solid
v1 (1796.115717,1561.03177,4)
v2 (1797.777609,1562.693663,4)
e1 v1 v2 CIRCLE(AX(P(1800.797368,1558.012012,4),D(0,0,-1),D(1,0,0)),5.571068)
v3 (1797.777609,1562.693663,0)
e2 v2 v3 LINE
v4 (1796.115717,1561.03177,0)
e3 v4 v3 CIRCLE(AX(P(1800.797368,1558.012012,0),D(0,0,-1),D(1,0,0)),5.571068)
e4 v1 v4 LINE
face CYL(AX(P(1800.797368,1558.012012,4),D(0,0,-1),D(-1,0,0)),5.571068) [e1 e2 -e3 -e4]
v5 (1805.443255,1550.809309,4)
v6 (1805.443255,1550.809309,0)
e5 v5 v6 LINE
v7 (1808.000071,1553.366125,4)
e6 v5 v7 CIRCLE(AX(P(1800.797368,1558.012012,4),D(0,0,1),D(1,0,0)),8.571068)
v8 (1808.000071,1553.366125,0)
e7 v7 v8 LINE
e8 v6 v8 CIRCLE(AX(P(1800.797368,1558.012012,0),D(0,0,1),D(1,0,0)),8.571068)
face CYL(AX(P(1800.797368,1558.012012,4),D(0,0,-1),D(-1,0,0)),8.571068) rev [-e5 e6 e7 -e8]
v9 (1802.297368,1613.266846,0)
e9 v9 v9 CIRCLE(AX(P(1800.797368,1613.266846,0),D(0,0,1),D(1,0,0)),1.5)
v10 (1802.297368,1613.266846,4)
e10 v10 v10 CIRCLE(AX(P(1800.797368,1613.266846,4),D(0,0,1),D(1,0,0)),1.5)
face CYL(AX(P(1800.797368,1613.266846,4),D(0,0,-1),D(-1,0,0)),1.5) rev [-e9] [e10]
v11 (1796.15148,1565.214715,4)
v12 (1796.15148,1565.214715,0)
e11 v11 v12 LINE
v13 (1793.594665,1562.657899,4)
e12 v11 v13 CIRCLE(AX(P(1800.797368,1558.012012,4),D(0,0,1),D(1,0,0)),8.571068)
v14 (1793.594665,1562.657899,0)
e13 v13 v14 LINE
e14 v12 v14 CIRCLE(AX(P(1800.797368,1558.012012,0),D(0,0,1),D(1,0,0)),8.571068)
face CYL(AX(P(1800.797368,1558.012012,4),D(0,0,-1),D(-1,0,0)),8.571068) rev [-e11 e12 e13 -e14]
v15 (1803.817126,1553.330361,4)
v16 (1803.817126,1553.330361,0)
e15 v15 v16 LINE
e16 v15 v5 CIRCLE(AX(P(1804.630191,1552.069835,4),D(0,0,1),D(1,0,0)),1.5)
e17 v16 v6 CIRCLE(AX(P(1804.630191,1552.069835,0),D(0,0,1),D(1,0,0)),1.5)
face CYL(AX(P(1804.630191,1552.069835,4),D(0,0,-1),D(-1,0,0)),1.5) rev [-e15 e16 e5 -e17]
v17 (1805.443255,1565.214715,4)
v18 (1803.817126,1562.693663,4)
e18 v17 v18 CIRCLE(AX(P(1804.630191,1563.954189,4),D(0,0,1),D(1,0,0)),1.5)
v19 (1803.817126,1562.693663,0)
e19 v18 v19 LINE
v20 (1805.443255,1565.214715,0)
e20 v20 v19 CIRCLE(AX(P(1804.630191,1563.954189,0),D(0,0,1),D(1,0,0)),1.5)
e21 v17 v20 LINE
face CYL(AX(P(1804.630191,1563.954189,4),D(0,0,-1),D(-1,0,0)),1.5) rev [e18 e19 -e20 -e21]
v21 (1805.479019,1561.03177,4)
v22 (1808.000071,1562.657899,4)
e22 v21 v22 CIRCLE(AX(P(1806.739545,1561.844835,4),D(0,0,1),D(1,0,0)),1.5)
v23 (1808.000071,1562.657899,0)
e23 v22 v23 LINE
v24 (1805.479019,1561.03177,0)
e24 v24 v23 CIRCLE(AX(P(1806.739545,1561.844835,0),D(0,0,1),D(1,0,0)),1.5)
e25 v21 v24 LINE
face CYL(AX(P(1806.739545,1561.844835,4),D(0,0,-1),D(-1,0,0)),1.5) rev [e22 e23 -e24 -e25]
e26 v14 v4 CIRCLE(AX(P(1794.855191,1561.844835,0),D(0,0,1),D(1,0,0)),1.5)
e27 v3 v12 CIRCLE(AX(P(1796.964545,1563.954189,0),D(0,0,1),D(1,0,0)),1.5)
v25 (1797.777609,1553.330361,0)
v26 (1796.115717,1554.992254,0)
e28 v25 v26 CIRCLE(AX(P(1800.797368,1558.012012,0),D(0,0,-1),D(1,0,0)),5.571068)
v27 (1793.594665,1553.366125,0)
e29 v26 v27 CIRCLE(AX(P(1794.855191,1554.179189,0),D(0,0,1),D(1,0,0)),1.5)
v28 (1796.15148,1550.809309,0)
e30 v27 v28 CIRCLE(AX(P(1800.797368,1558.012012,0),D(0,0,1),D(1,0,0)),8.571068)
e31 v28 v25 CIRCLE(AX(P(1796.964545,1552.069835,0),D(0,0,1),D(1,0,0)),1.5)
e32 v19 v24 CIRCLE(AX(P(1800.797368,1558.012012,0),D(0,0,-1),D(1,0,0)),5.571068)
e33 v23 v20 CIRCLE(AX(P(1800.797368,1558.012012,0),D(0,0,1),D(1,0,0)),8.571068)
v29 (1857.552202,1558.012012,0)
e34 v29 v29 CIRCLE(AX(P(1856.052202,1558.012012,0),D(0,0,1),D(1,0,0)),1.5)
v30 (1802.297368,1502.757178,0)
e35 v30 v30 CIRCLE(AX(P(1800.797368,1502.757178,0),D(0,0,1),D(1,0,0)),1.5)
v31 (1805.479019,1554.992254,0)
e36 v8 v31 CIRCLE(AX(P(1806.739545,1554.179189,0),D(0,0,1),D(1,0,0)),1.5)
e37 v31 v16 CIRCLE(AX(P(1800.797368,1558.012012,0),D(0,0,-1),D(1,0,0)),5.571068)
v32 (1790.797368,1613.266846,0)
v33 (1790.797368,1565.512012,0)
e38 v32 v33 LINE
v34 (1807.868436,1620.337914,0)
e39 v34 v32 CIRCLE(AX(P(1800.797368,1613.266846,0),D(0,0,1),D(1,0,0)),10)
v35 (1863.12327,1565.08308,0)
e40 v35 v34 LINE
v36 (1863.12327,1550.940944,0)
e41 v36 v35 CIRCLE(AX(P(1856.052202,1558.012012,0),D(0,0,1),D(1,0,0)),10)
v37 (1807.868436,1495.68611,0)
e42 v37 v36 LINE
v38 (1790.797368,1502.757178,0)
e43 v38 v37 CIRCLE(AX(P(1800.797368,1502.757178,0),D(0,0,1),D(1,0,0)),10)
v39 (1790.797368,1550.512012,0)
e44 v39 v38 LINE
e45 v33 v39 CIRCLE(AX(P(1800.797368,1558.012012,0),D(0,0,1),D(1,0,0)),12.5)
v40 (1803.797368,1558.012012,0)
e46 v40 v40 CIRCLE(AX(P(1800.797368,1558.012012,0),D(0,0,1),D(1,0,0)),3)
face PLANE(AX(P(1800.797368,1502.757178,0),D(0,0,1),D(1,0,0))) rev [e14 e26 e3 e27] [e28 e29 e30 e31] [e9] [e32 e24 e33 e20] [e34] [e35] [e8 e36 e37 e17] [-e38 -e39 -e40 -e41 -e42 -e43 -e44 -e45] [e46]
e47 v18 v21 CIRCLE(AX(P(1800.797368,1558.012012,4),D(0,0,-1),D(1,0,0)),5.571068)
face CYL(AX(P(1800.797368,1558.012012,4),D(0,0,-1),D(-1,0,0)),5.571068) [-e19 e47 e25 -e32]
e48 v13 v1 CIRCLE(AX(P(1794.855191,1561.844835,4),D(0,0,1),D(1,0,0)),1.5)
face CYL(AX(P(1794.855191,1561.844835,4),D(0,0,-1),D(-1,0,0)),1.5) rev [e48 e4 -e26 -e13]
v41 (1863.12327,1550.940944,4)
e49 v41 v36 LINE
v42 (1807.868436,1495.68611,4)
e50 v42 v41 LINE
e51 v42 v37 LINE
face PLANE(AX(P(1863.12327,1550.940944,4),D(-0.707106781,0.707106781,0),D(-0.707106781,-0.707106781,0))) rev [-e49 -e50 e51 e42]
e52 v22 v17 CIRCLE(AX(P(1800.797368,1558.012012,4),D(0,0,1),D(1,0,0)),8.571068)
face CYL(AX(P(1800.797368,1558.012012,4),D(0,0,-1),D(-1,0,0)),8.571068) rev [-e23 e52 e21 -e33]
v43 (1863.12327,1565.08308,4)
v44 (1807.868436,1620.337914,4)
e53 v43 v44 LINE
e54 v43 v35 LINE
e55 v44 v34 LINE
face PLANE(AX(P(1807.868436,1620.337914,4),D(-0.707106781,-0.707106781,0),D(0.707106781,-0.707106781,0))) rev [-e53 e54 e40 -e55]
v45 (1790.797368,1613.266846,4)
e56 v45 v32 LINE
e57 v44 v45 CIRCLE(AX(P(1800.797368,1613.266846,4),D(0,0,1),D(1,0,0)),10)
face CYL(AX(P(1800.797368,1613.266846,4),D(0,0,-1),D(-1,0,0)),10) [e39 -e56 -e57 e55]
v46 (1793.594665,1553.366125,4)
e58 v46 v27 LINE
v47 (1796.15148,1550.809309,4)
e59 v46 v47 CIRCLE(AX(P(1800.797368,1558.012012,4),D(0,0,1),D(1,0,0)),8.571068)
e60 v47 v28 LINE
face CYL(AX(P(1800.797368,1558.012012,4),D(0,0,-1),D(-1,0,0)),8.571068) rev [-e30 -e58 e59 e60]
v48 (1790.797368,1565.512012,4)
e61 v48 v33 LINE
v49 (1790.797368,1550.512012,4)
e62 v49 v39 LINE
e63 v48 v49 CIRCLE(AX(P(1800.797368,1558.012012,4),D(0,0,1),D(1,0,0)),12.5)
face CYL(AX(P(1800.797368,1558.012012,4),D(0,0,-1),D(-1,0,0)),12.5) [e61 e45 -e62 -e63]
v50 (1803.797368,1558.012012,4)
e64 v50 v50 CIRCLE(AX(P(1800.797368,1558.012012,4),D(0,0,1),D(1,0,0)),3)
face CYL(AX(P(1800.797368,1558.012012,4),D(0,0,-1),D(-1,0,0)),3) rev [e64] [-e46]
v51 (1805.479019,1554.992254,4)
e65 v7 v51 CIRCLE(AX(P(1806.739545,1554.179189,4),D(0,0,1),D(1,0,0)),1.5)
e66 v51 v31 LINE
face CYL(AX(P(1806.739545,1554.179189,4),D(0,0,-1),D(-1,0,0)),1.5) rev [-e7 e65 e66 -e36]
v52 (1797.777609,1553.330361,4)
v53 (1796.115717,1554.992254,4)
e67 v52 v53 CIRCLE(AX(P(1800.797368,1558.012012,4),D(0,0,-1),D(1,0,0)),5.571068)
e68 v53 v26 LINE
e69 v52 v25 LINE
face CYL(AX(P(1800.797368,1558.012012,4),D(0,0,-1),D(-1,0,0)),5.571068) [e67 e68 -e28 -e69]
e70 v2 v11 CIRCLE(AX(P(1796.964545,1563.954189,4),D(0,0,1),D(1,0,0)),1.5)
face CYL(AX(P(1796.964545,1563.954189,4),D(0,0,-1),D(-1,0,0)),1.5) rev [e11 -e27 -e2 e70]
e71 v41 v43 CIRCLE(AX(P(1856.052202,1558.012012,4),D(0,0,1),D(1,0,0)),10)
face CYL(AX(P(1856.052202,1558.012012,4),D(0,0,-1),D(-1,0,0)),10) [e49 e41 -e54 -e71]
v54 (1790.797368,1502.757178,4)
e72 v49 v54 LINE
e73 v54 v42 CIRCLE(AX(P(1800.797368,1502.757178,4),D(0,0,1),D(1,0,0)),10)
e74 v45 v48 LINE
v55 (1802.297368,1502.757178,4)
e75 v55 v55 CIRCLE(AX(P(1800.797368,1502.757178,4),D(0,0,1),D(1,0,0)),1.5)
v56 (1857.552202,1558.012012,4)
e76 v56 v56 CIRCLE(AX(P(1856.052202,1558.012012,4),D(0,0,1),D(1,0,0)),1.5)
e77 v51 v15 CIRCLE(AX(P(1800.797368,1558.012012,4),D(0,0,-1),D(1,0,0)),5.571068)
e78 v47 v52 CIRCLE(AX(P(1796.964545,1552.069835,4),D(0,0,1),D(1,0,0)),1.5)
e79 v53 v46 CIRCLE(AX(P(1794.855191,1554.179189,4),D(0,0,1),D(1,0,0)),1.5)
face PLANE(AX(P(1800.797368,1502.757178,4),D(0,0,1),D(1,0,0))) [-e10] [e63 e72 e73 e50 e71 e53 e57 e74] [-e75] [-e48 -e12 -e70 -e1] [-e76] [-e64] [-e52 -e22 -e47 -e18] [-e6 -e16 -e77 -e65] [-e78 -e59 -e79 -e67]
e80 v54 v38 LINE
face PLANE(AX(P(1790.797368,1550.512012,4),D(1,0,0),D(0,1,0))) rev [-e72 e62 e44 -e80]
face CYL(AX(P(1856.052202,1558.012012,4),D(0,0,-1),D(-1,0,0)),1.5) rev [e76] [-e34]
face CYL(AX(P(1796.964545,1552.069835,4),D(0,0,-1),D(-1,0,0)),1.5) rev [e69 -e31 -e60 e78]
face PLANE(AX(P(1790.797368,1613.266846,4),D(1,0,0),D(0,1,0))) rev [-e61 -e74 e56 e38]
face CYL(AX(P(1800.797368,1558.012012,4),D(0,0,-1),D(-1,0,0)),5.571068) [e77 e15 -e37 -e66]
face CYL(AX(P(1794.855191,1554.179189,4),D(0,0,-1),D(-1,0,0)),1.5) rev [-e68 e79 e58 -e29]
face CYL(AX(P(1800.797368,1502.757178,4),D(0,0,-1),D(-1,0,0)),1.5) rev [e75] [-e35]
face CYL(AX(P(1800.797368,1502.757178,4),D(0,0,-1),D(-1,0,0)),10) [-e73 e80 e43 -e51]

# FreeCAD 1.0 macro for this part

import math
import FreeCAD as App
import Part
import Sketcher
from FreeCAD import Vector

doc = App.newDocument("Part")
body = doc.addObject("PartDesign::Body", "Body")

sketch1 = body.newObject("Sketcher::SketchObject", "Sketch")
sketch1.AttachmentSupport = (doc.getObject("XY_Plane"), [""])
sketch1.MapMode = "FlatFace"
sketch1.addGeometry([
    Part.LineSegment(Vector(1790.8, 1613.3, 0), Vector(1790.8, 1565.5, 0)),
    Part.ArcOfCircle(Part.Circle(Vector(1800.8, 1558, 0), Vector(0, 0, 1), 12.5), math.radians(143), math.radians(217)),
    Part.LineSegment(Vector(1790.8, 1550.5, 0), Vector(1790.8, 1502.8, 0)),
    Part.ArcOfCircle(Part.Circle(Vector(1800.8, 1502.8, 0), Vector(0, 0, 1), 10), math.radians(-180), math.radians(-45)),
    Part.LineSegment(Vector(1807.9, 1495.7, 0), Vector(1863.1, 1550.9, 0)),
    Part.ArcOfCircle(Part.Circle(Vector(1856.1, 1558, 0), Vector(0, 0, 1), 10), math.radians(-45), math.radians(45)),
    Part.LineSegment(Vector(1863.1, 1565.1, 0), Vector(1807.9, 1620.3, 0)),
    Part.ArcOfCircle(Part.Circle(Vector(1800.8, 1613.3, 0), Vector(0, 0, 1), 10), math.radians(45), math.radians(180)),
    Part.Circle(Vector(1800.8, 1502.8, 0), Vector(0, 0, 1), 1.5),
    Part.ArcOfCircle(Part.Circle(Vector(1800.8, 1558, 0), Vector(0, 0, 1), 8.6), math.radians(-147), math.radians(-123)),
    Part.ArcOfCircle(Part.Circle(Vector(1794.9, 1554.2, 0), Vector(0, 0, 1), 1.5), math.radians(33), math.radians(213)),
    Part.ArcOfCircle(Part.Circle(Vector(1800.8, 1558, 0), Vector(0, 0, 1), 5.6), math.radians(-147), math.radians(-123)),
    Part.ArcOfCircle(Part.Circle(Vector(1797, 1552.1, 0), Vector(0, 0, 1), 1.5), math.radians(-123), math.radians(57)),
    Part.Circle(Vector(1800.8, 1558, 0), Vector(0, 0, 1), 3),
    Part.ArcOfCircle(Part.Circle(Vector(1800.8, 1558, 0), Vector(0, 0, 1), 8.6), math.radians(-57), math.radians(-33)),
    Part.ArcOfCircle(Part.Circle(Vector(1804.6, 1552.1, 0), Vector(0, 0, 1), 1.5), math.radians(123), math.radians(303)),
    Part.ArcOfCircle(Part.Circle(Vector(1800.8, 1558, 0), Vector(0, 0, 1), 5.6), math.radians(-57), math.radians(-33)),
    Part.ArcOfCircle(Part.Circle(Vector(1806.7, 1554.2, 0), Vector(0, 0, 1), 1.5), math.radians(-33), math.radians(147)),
    Part.Circle(Vector(1856.1, 1558, 0), Vector(0, 0, 1), 1.5),
    Part.ArcOfCircle(Part.Circle(Vector(1800.8, 1558, 0), Vector(0, 0, 1), 8.6), math.radians(123), math.radians(147)),
    Part.ArcOfCircle(Part.Circle(Vector(1797, 1564, 0), Vector(0, 0, 1), 1.5), math.radians(-57), math.radians(123)),
    Part.ArcOfCircle(Part.Circle(Vector(1800.8, 1558, 0), Vector(0, 0, 1), 5.6), math.radians(123), math.radians(147)),
    Part.ArcOfCircle(Part.Circle(Vector(1794.9, 1561.8, 0), Vector(0, 0, 1), 1.5), math.radians(147), math.radians(327)),
    Part.ArcOfCircle(Part.Circle(Vector(1800.8, 1558, 0), Vector(0, 0, 1), 8.6), math.radians(33), math.radians(57)),
    Part.ArcOfCircle(Part.Circle(Vector(1806.7, 1561.8, 0), Vector(0, 0, 1), 1.5), math.radians(-147), math.radians(33)),
    Part.ArcOfCircle(Part.Circle(Vector(1800.8, 1558, 0), Vector(0, 0, 1), 5.6), math.radians(33), math.radians(57)),
    Part.ArcOfCircle(Part.Circle(Vector(1804.6, 1564, 0), Vector(0, 0, 1), 1.5), math.radians(57), math.radians(237)),
    Part.Circle(Vector(1800.8, 1613.3, 0), Vector(0, 0, 1), 1.5),
], False)
sketch1.addConstraint([
    Sketcher.Constraint("Coincident", 0, 2, 1, 1),
    Sketcher.Constraint("Coincident", 1, 2, 2, 1),
    Sketcher.Constraint("Tangent", 2, 2, 3, 1),
    Sketcher.Constraint("Tangent", 3, 2, 4, 1),
    Sketcher.Constraint("Tangent", 4, 2, 5, 1),
    Sketcher.Constraint("Tangent", 5, 2, 6, 1),
    Sketcher.Constraint("Tangent", 6, 2, 7, 1),
    Sketcher.Constraint("Tangent", 7, 2, 0, 1),
    Sketcher.Constraint("Tangent", 9, 1, 10, 2),
    Sketcher.Constraint("Tangent", 10, 1, 11, 1),
    Sketcher.Constraint("Tangent", 11, 2, 12, 2),
    Sketcher.Constraint("Tangent", 12, 1, 9, 2),
    Sketcher.Constraint("Tangent", 14, 1, 15, 2),
    Sketcher.Constraint("Tangent", 15, 1, 16, 1),
    Sketcher.Constraint("Tangent", 16, 2, 17, 2),
    Sketcher.Constraint("Tangent", 17, 1, 14, 2),
    Sketcher.Constraint("Tangent", 19, 1, 20, 2),
    Sketcher.Constraint("Tangent", 20, 1, 21, 1),
    Sketcher.Constraint("Tangent", 21, 2, 22, 2),
    Sketcher.Constraint("Tangent", 22, 1, 19, 2),
    Sketcher.Constraint("Tangent", 23, 1, 24, 2),
    Sketcher.Constraint("Tangent", 24, 1, 25, 1),
    Sketcher.Constraint("Tangent", 25, 2, 26, 2),
    Sketcher.Constraint("Tangent", 26, 1, 23, 2),
    Sketcher.Constraint("Vertical", 0),
    Sketcher.Constraint("Vertical", 2),
    Sketcher.Constraint("Coincident", 8, 3, 3, 3),
    Sketcher.Constraint("Coincident", 9, 3, 1, 3),
    Sketcher.Constraint("Coincident", 11, 3, 1, 3),
    Sketcher.Constraint("Coincident", 13, 3, 1, 3),
    Sketcher.Constraint("Coincident", 14, 3, 1, 3),
    Sketcher.Constraint("Coincident", 16, 3, 1, 3),
    Sketcher.Constraint("Coincident", 18, 3, 5, 3),
    Sketcher.Constraint("Coincident", 19, 3, 1, 3),
    Sketcher.Constraint("Coincident", 21, 3, 1, 3),
    Sketcher.Constraint("Coincident", 23, 3, 1, 3),
    Sketcher.Constraint("Coincident", 25, 3, 1, 3),
    Sketcher.Constraint("Coincident", 27, 3, 7, 3),
    Sketcher.Constraint("Equal", 3, 5),
    Sketcher.Constraint("Equal", 5, 7),
    Sketcher.Constraint("Equal", 8, 10),
    Sketcher.Constraint("Equal", 9, 14),
    Sketcher.Constraint("Equal", 12, 15),
    Sketcher.Constraint("Equal", 17, 18),
    Sketcher.Constraint("Equal", 14, 19),
    Sketcher.Constraint("Equal", 18, 20),
    Sketcher.Constraint("Equal", 19, 23),
    Sketcher.Constraint("Equal", 22, 24),
    Sketcher.Constraint("Equal", 26, 27),
    Sketcher.Constraint("Perpendicular", 4, 6),
    Sketcher.Constraint("Horizontal", 1, 3, 5, 3),
    Sketcher.Constraint("Horizontal", 12, 3, 15, 3),
    Sketcher.Constraint("Horizontal", 10, 3, 17, 3),
    Sketcher.Constraint("Horizontal", 22, 3, 24, 3),
    Sketcher.Constraint("Horizontal", 20, 3, 26, 3),
    Sketcher.Constraint("Vertical", 1, 3, 3, 3),
    Sketcher.Constraint("Vertical", 3, 3, 7, 3),
    Sketcher.Constraint("Vertical", 12, 3, 20, 3),
    Sketcher.Constraint("Vertical", 10, 3, 22, 3),
    Sketcher.Constraint("Vertical", 4, 2, 5, 2),
    Sketcher.Constraint("Diameter", 8, 3.0),
    Sketcher.Constraint("Diameter", 13, 6.0),
    Sketcher.Constraint("Radius", 3, 10.0),
    Sketcher.Constraint("Radius", 1, 12.5),
    Sketcher.Constraint("Radius", 9, 8.571068),
    Sketcher.Constraint("DistanceX", -1, 1, 5, 3, 1856.052202),
    Sketcher.Constraint("DistanceY", -1, 1, 22, 1, 1562.657899),
    Sketcher.Constraint("DistanceY", 3, 2, 1, 2, 54.825902),
    Sketcher.Constraint("DistanceY", -1, 1, 1, 3, 1558.012012),
    Sketcher.Constraint("DistanceX", -1, 1, 15, 3, 1804.630191),
])
pad1 = body.newObject("PartDesign::Pad", "Pad")
pad1.Profile = sketch1
pad1.Length = 4

doc.recompute()
